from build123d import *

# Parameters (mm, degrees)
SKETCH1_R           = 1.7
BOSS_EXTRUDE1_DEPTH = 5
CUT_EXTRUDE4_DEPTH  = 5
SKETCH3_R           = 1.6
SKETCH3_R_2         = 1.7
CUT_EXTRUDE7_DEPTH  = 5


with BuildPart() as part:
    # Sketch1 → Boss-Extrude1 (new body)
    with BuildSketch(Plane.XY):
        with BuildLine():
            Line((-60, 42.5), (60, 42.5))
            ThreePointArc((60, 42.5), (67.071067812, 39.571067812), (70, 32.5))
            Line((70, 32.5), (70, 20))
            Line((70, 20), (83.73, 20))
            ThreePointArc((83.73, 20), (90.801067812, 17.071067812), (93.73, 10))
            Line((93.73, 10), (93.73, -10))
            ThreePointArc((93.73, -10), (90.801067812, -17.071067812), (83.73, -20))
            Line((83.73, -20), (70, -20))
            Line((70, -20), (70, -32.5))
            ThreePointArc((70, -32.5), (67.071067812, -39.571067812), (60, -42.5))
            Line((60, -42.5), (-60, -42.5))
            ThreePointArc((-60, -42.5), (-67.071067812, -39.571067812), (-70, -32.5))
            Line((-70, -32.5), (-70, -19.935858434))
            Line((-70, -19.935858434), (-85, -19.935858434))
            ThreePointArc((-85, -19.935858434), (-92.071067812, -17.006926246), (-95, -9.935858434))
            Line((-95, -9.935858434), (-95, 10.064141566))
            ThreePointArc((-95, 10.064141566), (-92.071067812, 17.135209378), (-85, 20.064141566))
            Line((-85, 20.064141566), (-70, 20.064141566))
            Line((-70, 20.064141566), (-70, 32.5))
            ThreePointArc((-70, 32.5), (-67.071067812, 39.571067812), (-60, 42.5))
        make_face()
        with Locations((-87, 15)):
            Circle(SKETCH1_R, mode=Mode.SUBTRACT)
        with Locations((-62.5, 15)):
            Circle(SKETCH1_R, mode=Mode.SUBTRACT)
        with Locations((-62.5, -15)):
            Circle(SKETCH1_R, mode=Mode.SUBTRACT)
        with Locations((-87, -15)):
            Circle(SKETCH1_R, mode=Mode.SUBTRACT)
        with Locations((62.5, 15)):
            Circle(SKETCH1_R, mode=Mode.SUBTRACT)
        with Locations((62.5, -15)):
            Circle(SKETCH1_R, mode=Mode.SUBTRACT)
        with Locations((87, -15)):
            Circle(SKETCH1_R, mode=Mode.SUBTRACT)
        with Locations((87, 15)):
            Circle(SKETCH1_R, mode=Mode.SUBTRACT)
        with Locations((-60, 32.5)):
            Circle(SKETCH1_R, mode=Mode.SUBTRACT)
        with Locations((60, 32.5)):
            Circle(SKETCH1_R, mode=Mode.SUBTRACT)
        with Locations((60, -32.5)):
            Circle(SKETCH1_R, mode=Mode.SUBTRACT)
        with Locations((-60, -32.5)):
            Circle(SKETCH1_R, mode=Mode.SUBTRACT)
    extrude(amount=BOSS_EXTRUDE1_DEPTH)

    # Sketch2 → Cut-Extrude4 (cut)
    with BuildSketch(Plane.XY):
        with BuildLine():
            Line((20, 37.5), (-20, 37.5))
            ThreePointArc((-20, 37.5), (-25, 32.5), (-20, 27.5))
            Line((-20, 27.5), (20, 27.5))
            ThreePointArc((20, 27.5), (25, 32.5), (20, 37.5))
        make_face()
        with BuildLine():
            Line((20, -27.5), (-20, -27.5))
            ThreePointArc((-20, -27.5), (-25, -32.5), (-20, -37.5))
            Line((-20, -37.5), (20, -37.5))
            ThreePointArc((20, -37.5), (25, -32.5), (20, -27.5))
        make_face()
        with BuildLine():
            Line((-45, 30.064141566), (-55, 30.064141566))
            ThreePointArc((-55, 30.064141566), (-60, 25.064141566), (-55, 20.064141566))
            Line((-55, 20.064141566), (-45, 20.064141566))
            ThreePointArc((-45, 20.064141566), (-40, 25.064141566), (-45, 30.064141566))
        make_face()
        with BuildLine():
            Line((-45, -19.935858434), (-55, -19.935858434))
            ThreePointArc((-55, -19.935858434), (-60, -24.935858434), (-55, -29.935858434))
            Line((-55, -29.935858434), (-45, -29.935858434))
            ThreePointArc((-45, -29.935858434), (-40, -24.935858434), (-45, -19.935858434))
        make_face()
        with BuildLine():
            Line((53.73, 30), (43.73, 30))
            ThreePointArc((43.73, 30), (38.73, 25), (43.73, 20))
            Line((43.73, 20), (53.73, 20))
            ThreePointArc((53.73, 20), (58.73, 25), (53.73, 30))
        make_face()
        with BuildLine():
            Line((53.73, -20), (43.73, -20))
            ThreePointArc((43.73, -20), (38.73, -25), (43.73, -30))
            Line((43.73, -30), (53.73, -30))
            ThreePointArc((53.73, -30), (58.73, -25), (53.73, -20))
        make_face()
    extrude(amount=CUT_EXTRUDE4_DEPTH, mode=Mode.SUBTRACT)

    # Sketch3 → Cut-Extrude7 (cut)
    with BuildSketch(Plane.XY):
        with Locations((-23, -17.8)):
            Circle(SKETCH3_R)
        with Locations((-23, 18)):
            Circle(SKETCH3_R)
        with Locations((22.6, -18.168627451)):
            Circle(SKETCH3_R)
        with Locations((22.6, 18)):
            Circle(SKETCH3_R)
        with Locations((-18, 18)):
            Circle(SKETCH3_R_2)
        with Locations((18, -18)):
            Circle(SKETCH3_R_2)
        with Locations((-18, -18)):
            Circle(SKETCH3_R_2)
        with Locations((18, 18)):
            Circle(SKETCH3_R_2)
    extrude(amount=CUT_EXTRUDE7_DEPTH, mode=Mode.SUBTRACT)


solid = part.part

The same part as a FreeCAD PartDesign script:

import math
import FreeCAD as App
import Part
import Sketcher
Q = App.Units.Quantity

doc = App.newDocument("Part")
params = doc.addObject("Spreadsheet::Sheet", "Params")
for row, (alias, value) in enumerate([
    ("sketch1_radius", "10 mm"),
    ("sketch1_diameter", "3.4 mm"),
    ("sketch1_width", "120 mm"),
    ("sketch1_width2", "15 mm"),
    ("sketch1_height", "20 mm"),
    ("pad1_length", "5 mm"),
    ("sketch2_radius", "5 mm"),
    ("sketch2_width", "40 mm"),
    ("sketch2_width2", "10 mm"),
    ("pocket1_length", "5 mm"),
    ("sketch3_diameter", "3.2 mm"),
    ("sketch3_diameter2", "3.4 mm"),
    ("pocket2_length", "5 mm"),
], start=1):
    params.set(f"A{row}", alias)
    params.set(f"B{row}", "=" + value)
    params.setAlias(f"B{row}", alias)

body = doc.addObject("PartDesign::Body", "Body")

# Sketch on XY plane
sketch1 = body.newObject("Sketcher::SketchObject", "Sketch")
sketch1.AttachmentSupport = (doc.getObject("XY_Plane"), [""])
sketch1.MapMode = "FlatFace"
sketch1.addGeometry(Part.LineSegment(App.Vector(60, 42.5, 0), App.Vector(-60, 42.5, 0)), False)
sketch1.addGeometry(Part.ArcOfCircle(Part.Circle(App.Vector(-60, 32.5, 0), App.Vector(0, 0, 1), 10), math.radians(90), math.radians(180)), False)
sketch1.addGeometry(Part.LineSegment(App.Vector(-70, 32.5, 0), App.Vector(-70, 20.064142, 0)), False)
sketch1.addGeometry(Part.LineSegment(App.Vector(-70, 20.064142, 0), App.Vector(-85, 20.064142, 0)), False)
sketch1.addGeometry(Part.ArcOfCircle(Part.Circle(App.Vector(-85, 10.064142, 0), App.Vector(0, 0, 1), 10), math.radians(90), math.radians(180)), False)
sketch1.addGeometry(Part.LineSegment(App.Vector(-95, 10.064142, 0), App.Vector(-95, -9.935858, 0)), False)
sketch1.addGeometry(Part.ArcOfCircle(Part.Circle(App.Vector(-85, -9.935858, 0), App.Vector(0, 0, 1), 10), math.radians(180), math.radians(270)), False)
sketch1.addGeometry(Part.LineSegment(App.Vector(-85, -19.935858, 0), App.Vector(-70, -19.935858, 0)), False)
sketch1.addGeometry(Part.LineSegment(App.Vector(-70, -19.935858, 0), App.Vector(-70, -32.5, 0)), False)
sketch1.addGeometry(Part.ArcOfCircle(Part.Circle(App.Vector(-60, -32.5, 0), App.Vector(0, 0, 1), 10), math.radians(180), math.radians(270)), False)
sketch1.addGeometry(Part.LineSegment(App.Vector(-60, -42.5, 0), App.Vector(60, -42.5, 0)), False)
sketch1.addGeometry(Part.ArcOfCircle(Part.Circle(App.Vector(60, -32.5, 0), App.Vector(0, 0, 1), 10), math.radians(-90), math.radians(0)), False)
sketch1.addGeometry(Part.LineSegment(App.Vector(70, -32.5, 0), App.Vector(70, -20, 0)), False)
sketch1.addGeometry(Part.LineSegment(App.Vector(70, -20, 0), App.Vector(83.73, -20, 0)), False)
sketch1.addGeometry(Part.ArcOfCircle(Part.Circle(App.Vector(83.73, -10, 0), App.Vector(0, 0, 1), 10), math.radians(-90), math.radians(0)), False)
sketch1.addGeometry(Part.LineSegment(App.Vector(93.73, -10, 0), App.Vector(93.73, 10, 0)), False)
sketch1.addGeometry(Part.ArcOfCircle(Part.Circle(App.Vector(83.73, 10, 0), App.Vector(0, 0, 1), 10), math.radians(0), math.radians(90)), False)
sketch1.addGeometry(Part.LineSegment(App.Vector(83.73, 20, 0), App.Vector(70, 20, 0)), False)
sketch1.addGeometry(Part.LineSegment(App.Vector(70, 20, 0), App.Vector(70, 32.5, 0)), False)
sketch1.addGeometry(Part.ArcOfCircle(Part.Circle(App.Vector(60, 32.5, 0), App.Vector(0, 0, 1), 10), math.radians(0), math.radians(90)), False)
sketch1.addGeometry(Part.Circle(App.Vector(60, -32.5, 0), App.Vector(0, 0, 1), 1.7), False)
sketch1.addGeometry(Part.Circle(App.Vector(87, -15, 0), App.Vector(0, 0, 1), 1.7), False)
sketch1.addGeometry(Part.Circle(App.Vector(62.5, -15, 0), App.Vector(0, 0, 1), 1.7), False)
sketch1.addGeometry(Part.Circle(App.Vector(-60, -32.5, 0), App.Vector(0, 0, 1), 1.7), False)
sketch1.addGeometry(Part.Circle(App.Vector(-62.5, -15, 0), App.Vector(0, 0, 1), 1.7), False)
sketch1.addGeometry(Part.Circle(App.Vector(-87, -15, 0), App.Vector(0, 0, 1), 1.7), False)
sketch1.addGeometry(Part.Circle(App.Vector(87, 15, 0), App.Vector(0, 0, 1), 1.7), False)
sketch1.addGeometry(Part.Circle(App.Vector(62.5, 15, 0), App.Vector(0, 0, 1), 1.7), False)
sketch1.addGeometry(Part.Circle(App.Vector(60, 32.5, 0), App.Vector(0, 0, 1), 1.7), False)
sketch1.addGeometry(Part.Circle(App.Vector(-62.5, 15, 0), App.Vector(0, 0, 1), 1.7), False)
sketch1.addGeometry(Part.Circle(App.Vector(-87, 15, 0), App.Vector(0, 0, 1), 1.7), False)
sketch1.addGeometry(Part.Circle(App.Vector(-60, 32.5, 0), App.Vector(0, 0, 1), 1.7), False)
sketch1.addConstraint(Sketcher.Constraint("Tangent", 0, 2, 1, 1))
sketch1.addConstraint(Sketcher.Constraint("Tangent", 1, 2, 2, 1))
sketch1.addConstraint(Sketcher.Constraint("Coincident", 2, 2, 3, 1))
sketch1.addConstraint(Sketcher.Constraint("Tangent", 3, 2, 4, 1))
sketch1.addConstraint(Sketcher.Constraint("Tangent", 4, 2, 5, 1))
sketch1.addConstraint(Sketcher.Constraint("Tangent", 5, 2, 6, 1))
sketch1.addConstraint(Sketcher.Constraint("Tangent", 6, 2, 7, 1))
sketch1.addConstraint(Sketcher.Constraint("Coincident", 7, 2, 8, 1))
sketch1.addConstraint(Sketcher.Constraint("Tangent", 8, 2, 9, 1))
sketch1.addConstraint(Sketcher.Constraint("Tangent", 9, 2, 10, 1))
sketch1.addConstraint(Sketcher.Constraint("Tangent", 10, 2, 11, 1))
sketch1.addConstraint(Sketcher.Constraint("Tangent", 11, 2, 12, 1))
sketch1.addConstraint(Sketcher.Constraint("Coincident", 12, 2, 13, 1))
sketch1.addConstraint(Sketcher.Constraint("Tangent", 13, 2, 14, 1))
sketch1.addConstraint(Sketcher.Constraint("Tangent", 14, 2, 15, 1))
sketch1.addConstraint(Sketcher.Constraint("Tangent", 15, 2, 16, 1))
sketch1.addConstraint(Sketcher.Constraint("Tangent", 16, 2, 17, 1))
sketch1.addConstraint(Sketcher.Constraint("Coincident", 17, 2, 18, 1))
sketch1.addConstraint(Sketcher.Constraint("Tangent", 18, 2, 19, 1))
sketch1.addConstraint(Sketcher.Constraint("Tangent", 19, 2, 0, 1))
sketch1.addConstraint(Sketcher.Constraint("Horizontal", 0))
sketch1.addConstraint(Sketcher.Constraint("Vertical", 2))
sketch1.addConstraint(Sketcher.Constraint("Horizontal", 3))
sketch1.addConstraint(Sketcher.Constraint("Vertical", 5))
sketch1.addConstraint(Sketcher.Constraint("Horizontal", 7))
sketch1.addConstraint(Sketcher.Constraint("Vertical", 8))
sketch1.addConstraint(Sketcher.Constraint("Horizontal", 10))
sketch1.addConstraint(Sketcher.Constraint("Vertical", 12))
sketch1.addConstraint(Sketcher.Constraint("Horizontal", 13))
sketch1.addConstraint(Sketcher.Constraint("Vertical", 15))
sketch1.addConstraint(Sketcher.Constraint("Horizontal", 17))
sketch1.addConstraint(Sketcher.Constraint("Vertical", 18))
sketch1.addConstraint(Sketcher.Constraint("Coincident", 20, 3, 11, 3))
sketch1.addConstraint(Sketcher.Constraint("Coincident", 23, 3, 9, 3))
sketch1.addConstraint(Sketcher.Constraint("Coincident", 28, 3, 19, 3))
sketch1.addConstraint(Sketcher.Constraint("Coincident", 31, 3, 1, 3))
sketch1.addConstraint(Sketcher.Constraint("Equal", 1, 4))
sketch1.addConstraint(Sketcher.Constraint("Equal", 4, 6))
sketch1.addConstraint(Sketcher.Constraint("Equal", 6, 9))
sketch1.addConstraint(Sketcher.Constraint("Equal", 9, 11))
sketch1.addConstraint(Sketcher.Constraint("Equal", 11, 14))
sketch1.addConstraint(Sketcher.Constraint("Equal", 14, 16))
sketch1.addConstraint(Sketcher.Constraint("Equal", 16, 19))
sketch1.addConstraint(Sketcher.Constraint("Equal", 20, 21))
sketch1.addConstraint(Sketcher.Constraint("Equal", 21, 22))
sketch1.addConstraint(Sketcher.Constraint("Equal", 22, 23))
sketch1.addConstraint(Sketcher.Constraint("Equal", 23, 24))
sketch1.addConstraint(Sketcher.Constraint("Equal", 24, 25))
sketch1.addConstraint(Sketcher.Constraint("Equal", 25, 26))
sketch1.addConstraint(Sketcher.Constraint("Equal", 26, 27))
sketch1.addConstraint(Sketcher.Constraint("Equal", 27, 28))
sketch1.addConstraint(Sketcher.Constraint("Equal", 28, 29))
sketch1.addConstraint(Sketcher.Constraint("Equal", 29, 30))
sketch1.addConstraint(Sketcher.Constraint("Equal", 30, 31))
sketch1.addConstraint(Sketcher.Constraint("Symmetric", 1, 3, 11, 3, -1, 1))
sketch1.addConstraint(Sketcher.Constraint("Symmetric", 25, 3, 26, 3, -1, 1))
sketch1.addConstraint(Sketcher.Constraint("Symmetric", 24, 3, 27, 3, -1, 1))
sketch1.addConstraint(Sketcher.Constraint("Symmetric", 22, 3, 29, 3, -1, 1))
sketch1.addConstraint(Sketcher.Constraint("Symmetric", 21, 3, 30, 3, -1, 1))
sketch1.addConstraint(Sketcher.Constraint("Symmetric", 22, 3, 24, 3, -2))
sketch1.addConstraint(Sketcher.Constraint("Symmetric", 21, 3, 25, 3, -2))
sketch1.addConstraint(Sketcher.Constraint("Symmetric", 12, 2, 17, 2, -1))
sketch1.addConstraint(Sketcher.Constraint("Horizontal", 21, 3, 22, 3))
sketch1.addConstraint(Sketcher.Constraint("Vertical", 1, 3, 9, 3))
sketch1.addConstraint(Sketcher.Constraint("Equal", 5, 15))
sketch1.addConstraint(Sketcher.Constraint("Radius", 1, Q("10 mm")))
sketch1.addConstraint(Sketcher.Constraint("Diameter", 20, Q("3.4 mm")))
sketch1.addConstraint(Sketcher.Constraint("DistanceX", 0, 2, 0, 1, Q("120 mm")))
sketch1.addConstraint(Sketcher.Constraint("DistanceX", 3, 2, 3, 1, Q("15 mm")))
sketch1.addConstraint(Sketcher.Constraint("DistanceY", 5, 2, 5, 1, Q("20 mm")))
sketch1.addConstraint(Sketcher.Constraint("DistanceY", 12, 1, 12, 2, Q("12.5 mm")))
sketch1.addConstraint(Sketcher.Constraint("DistanceX", -1, 1, 21, 3, Q("87 mm")))
sketch1.addConstraint(Sketcher.Constraint("DistanceY", 21, 3, -1, 1, Q("15 mm")))
sketch1.addConstraint(Sketcher.Constraint("DistanceX", 13, 1, 13, 2, Q("13.73 mm")))
sketch1.addConstraint(Sketcher.Constraint("DistanceX", -1, 1, 22, 3, Q("62.5 mm")))
sketch1.addConstraint(Sketcher.Constraint("DistanceY", 2, 2, 2, 1, Q("12.435858 mm")))
sketch1.setExpression("Constraints[65]", "Params.sketch1_radius")
sketch1.setExpression("Constraints[66]", "Params.sketch1_diameter")
sketch1.setExpression("Constraints[67]", "Params.sketch1_width")
sketch1.setExpression("Constraints[68]", "Params.sketch1_width2")
sketch1.setExpression("Constraints[69]", "Params.sketch1_height")
pad1 = body.newObject("PartDesign::Pad", "Pad")
pad1.Profile = sketch1
pad1.setExpression("Length", "Params.pad1_length")

# Sketch on XY plane
sketch2 = body.newObject("Sketcher::SketchObject", "Sketch001")
sketch2.AttachmentSupport = (doc.getObject("XY_Plane"), [""])
sketch2.MapMode = "FlatFace"
sketch2.addGeometry(Part.LineSegment(App.Vector(20, 37.5, 0), App.Vector(-20, 37.5, 0)), False)
sketch2.addGeometry(Part.ArcOfCircle(Part.Circle(App.Vector(-20, 32.5, 0), App.Vector(0, 0, 1), 5), math.radians(90), math.radians(270)), False)
sketch2.addGeometry(Part.LineSegment(App.Vector(-20, 27.5, 0), App.Vector(20, 27.5, 0)), False)
sketch2.addGeometry(Part.ArcOfCircle(Part.Circle(App.Vector(20, 32.5, 0), App.Vector(0, 0, 1), 5), math.radians(-90), math.radians(90)), False)
sketch2.addGeometry(Part.LineSegment(App.Vector(20, -27.5, 0), App.Vector(-20, -27.5, 0)), False)
sketch2.addGeometry(Part.ArcOfCircle(Part.Circle(App.Vector(-20, -32.5, 0), App.Vector(0, 0, 1), 5), math.radians(90), math.radians(270)), False)
sketch2.addGeometry(Part.LineSegment(App.Vector(-20, -37.5, 0), App.Vector(20, -37.5, 0)), False)
sketch2.addGeometry(Part.ArcOfCircle(Part.Circle(App.Vector(20, -32.5, 0), App.Vector(0, 0, 1), 5), math.radians(-90), math.radians(90)), False)
sketch2.addGeometry(Part.LineSegment(App.Vector(-45, 30.064142, 0), App.Vector(-55, 30.064142, 0)), False)
sketch2.addGeometry(Part.ArcOfCircle(Part.Circle(App.Vector(-55, 25.064142, 0), App.Vector(0, 0, 1), 5), math.radians(90), math.radians(270)), False)
sketch2.addGeometry(Part.LineSegment(App.Vector(-55, 20.064142, 0), App.Vector(-45, 20.064142, 0)), False)
sketch2.addGeometry(Part.ArcOfCircle(Part.Circle(App.Vector(-45, 25.064142, 0), App.Vector(0, 0, 1), 5), math.radians(-90), math.radians(90)), False)
sketch2.addGeometry(Part.LineSegment(App.Vector(-45, -19.935858, 0), App.Vector(-55, -19.935858, 0)), False)
sketch2.addGeometry(Part.ArcOfCircle(Part.Circle(App.Vector(-55, -24.935858, 0), App.Vector(0, 0, 1), 5), math.radians(90), math.radians(270)), False)
sketch2.addGeometry(Part.LineSegment(App.Vector(-55, -29.935858, 0), App.Vector(-45, -29.935858, 0)), False)
sketch2.addGeometry(Part.ArcOfCircle(Part.Circle(App.Vector(-45, -24.935858, 0), App.Vector(0, 0, 1), 5), math.radians(-90), math.radians(90)), False)
sketch2.addGeometry(Part.LineSegment(App.Vector(53.73, 30, 0), App.Vector(43.73, 30, 0)), False)
sketch2.addGeometry(Part.ArcOfCircle(Part.Circle(App.Vector(43.73, 25, 0), App.Vector(0, 0, 1), 5), math.radians(90), math.radians(270)), False)
sketch2.addGeometry(Part.LineSegment(App.Vector(43.73, 20, 0), App.Vector(53.73, 20, 0)), False)
sketch2.addGeometry(Part.ArcOfCircle(Part.Circle(App.Vector(53.73, 25, 0), App.Vector(0, 0, 1), 5), math.radians(-90), math.radians(90)), False)
sketch2.addGeometry(Part.LineSegment(App.Vector(53.73, -20, 0), App.Vector(43.73, -20, 0)), False)
sketch2.addGeometry(Part.ArcOfCircle(Part.Circle(App.Vector(43.73, -25, 0), App.Vector(0, 0, 1), 5), math.radians(90), math.radians(270)), False)
sketch2.addGeometry(Part.LineSegment(App.Vector(43.73, -30, 0), App.Vector(53.73, -30, 0)), False)
sketch2.addGeometry(Part.ArcOfCircle(Part.Circle(App.Vector(53.73, -25, 0), App.Vector(0, 0, 1), 5), math.radians(-90), math.radians(90)), False)
sketch2.addConstraint(Sketcher.Constraint("Tangent", 0, 2, 1, 1))
sketch2.addConstraint(Sketcher.Constraint("Tangent", 1, 2, 2, 1))
sketch2.addConstraint(Sketcher.Constraint("Tangent", 2, 2, 3, 1))
sketch2.addConstraint(Sketcher.Constraint("Tangent", 3, 2, 0, 1))
sketch2.addConstraint(Sketcher.Constraint("Tangent", 4, 2, 5, 1))
sketch2.addConstraint(Sketcher.Constraint("Tangent", 5, 2, 6, 1))
sketch2.addConstraint(Sketcher.Constraint("Tangent", 6, 2, 7, 1))
sketch2.addConstraint(Sketcher.Constraint("Tangent", 7, 2, 4, 1))
sketch2.addConstraint(Sketcher.Constraint("Tangent", 8, 2, 9, 1))
sketch2.addConstraint(Sketcher.Constraint("Tangent", 9, 2, 10, 1))
sketch2.addConstraint(Sketcher.Constraint("Tangent", 10, 2, 11, 1))
sketch2.addConstraint(Sketcher.Constraint("Tangent", 11, 2, 8, 1))
sketch2.addConstraint(Sketcher.Constraint("Tangent", 12, 2, 13, 1))
sketch2.addConstraint(Sketcher.Constraint("Tangent", 13, 2, 14, 1))
sketch2.addConstraint(Sketcher.Constraint("Tangent", 14, 2, 15, 1))
sketch2.addConstraint(Sketcher.Constraint("Tangent", 15, 2, 12, 1))
sketch2.addConstraint(Sketcher.Constraint("Tangent", 16, 2, 17, 1))
sketch2.addConstraint(Sketcher.Constraint("Tangent", 17, 2, 18, 1))
sketch2.addConstraint(Sketcher.Constraint("Tangent", 18, 2, 19, 1))
sketch2.addConstraint(Sketcher.Constraint("Tangent", 19, 2, 16, 1))
sketch2.addConstraint(Sketcher.Constraint("Tangent", 20, 2, 21, 1))
sketch2.addConstraint(Sketcher.Constraint("Tangent", 21, 2, 22, 1))
sketch2.addConstraint(Sketcher.Constraint("Tangent", 22, 2, 23, 1))
sketch2.addConstraint(Sketcher.Constraint("Tangent", 23, 2, 20, 1))
sketch2.addConstraint(Sketcher.Constraint("Horizontal", 0))
sketch2.addConstraint(Sketcher.Constraint("Horizontal", 2))
sketch2.addConstraint(Sketcher.Constraint("Horizontal", 4))
sketch2.addConstraint(Sketcher.Constraint("Horizontal", 6))
sketch2.addConstraint(Sketcher.Constraint("Horizontal", 8))
sketch2.addConstraint(Sketcher.Constraint("Horizontal", 10))
sketch2.addConstraint(Sketcher.Constraint("Horizontal", 12))
sketch2.addConstraint(Sketcher.Constraint("Horizontal", 14))
sketch2.addConstraint(Sketcher.Constraint("Horizontal", 16))
sketch2.addConstraint(Sketcher.Constraint("Horizontal", 18))
sketch2.addConstraint(Sketcher.Constraint("Horizontal", 20))
sketch2.addConstraint(Sketcher.Constraint("Horizontal", 22))
sketch2.addConstraint(Sketcher.Constraint("Equal", 3, 5))
sketch2.addConstraint(Sketcher.Constraint("Equal", 7, 9))
sketch2.addConstraint(Sketcher.Constraint("Equal", 11, 13))
sketch2.addConstraint(Sketcher.Constraint("Equal", 15, 17))
sketch2.addConstraint(Sketcher.Constraint("Equal", 19, 21))
sketch2.addConstraint(Sketcher.Constraint("Symmetric", 3, 3, 5, 3, -1, 1))
sketch2.addConstraint(Sketcher.Constraint("Symmetric", 17, 3, 21, 3, -1))
sketch2.addConstraint(Sketcher.Constraint("Vertical", 1, 3, 5, 3))
sketch2.addConstraint(Sketcher.Constraint("Vertical", 3, 3, 7, 3))
sketch2.addConstraint(Sketcher.Constraint("Vertical", 9, 3, 13, 3))
sketch2.addConstraint(Sketcher.Constraint("Vertical", 11, 3, 15, 3))
sketch2.addConstraint(Sketcher.Constraint("Vertical", 19, 3, 23, 3))
sketch2.addConstraint(Sketcher.Constraint("Equal", 14, 16))
sketch2.addConstraint(Sketcher.Constraint("Radius", 1, Q("5 mm")))
sketch2.addConstraint(Sketcher.Constraint("DistanceX", 0, 2, 0, 1, Q("40 mm")))
sketch2.addConstraint(Sketcher.Constraint("DistanceX", 8, 2, 8, 1, Q("10 mm")))
sketch2.addConstraint(Sketcher.Constraint("DistanceX", 9, 3, -1, 1, Q("55 mm")))
sketch2.addConstraint(Sketcher.Constraint("DistanceY", -1, 1, 17, 3, Q("25 mm")))
sketch2.addConstraint(Sketcher.Constraint("DistanceY", 5, 3, 1, 3, Q("65 mm")))
sketch2.addConstraint(Sketcher.Constraint("DistanceY", 13, 3, 9, 3, Q("50 mm")))
sketch2.addConstraint(Sketcher.Constraint("DistanceX", -1, 1, 17, 3, Q("43.73 mm")))
sketch2.addConstraint(Sketcher.Constraint("DistanceY", -1, 1, 9, 3, Q("25.064142 mm")))
sketch2.setExpression("Constraints[49]", "Params.sketch2_radius")
sketch2.setExpression("Constraints[50]", "Params.sketch2_width")
sketch2.setExpression("Constraints[51]", "Params.sketch2_width2")
pocket1 = body.newObject("PartDesign::Pocket", "Pocket")
pocket1.Profile = sketch2
pocket1.setExpression("Length", "Params.pocket1_length")
pocket1.Reversed = True

# Sketch on XY plane
sketch3 = body.newObject("Sketcher::SketchObject", "Sketch002")
sketch3.AttachmentSupport = (doc.getObject("XY_Plane"), [""])
sketch3.MapMode = "FlatFace"
sketch3.addGeometry(Part.Circle(App.Vector(-23, -17.8, 0), App.Vector(0, 0, 1), 1.6), False)
sketch3.addGeometry(Part.Circle(App.Vector(-23, 18, 0), App.Vector(0, 0, 1), 1.6), False)
sketch3.addGeometry(Part.Circle(App.Vector(22.6, -18.168627, 0), App.Vector(0, 0, 1), 1.6), False)
sketch3.addGeometry(Part.Circle(App.Vector(22.6, 18, 0), App.Vector(0, 0, 1), 1.6), False)
sketch3.addGeometry(Part.Circle(App.Vector(-18, 18, 0), App.Vector(0, 0, 1), 1.7), False)
sketch3.addGeometry(Part.Circle(App.Vector(18, -18, 0), App.Vector(0, 0, 1), 1.7), False)
sketch3.addGeometry(Part.Circle(App.Vector(-18, -18, 0), App.Vector(0, 0, 1), 1.7), False)
sketch3.addGeometry(Part.Circle(App.Vector(18, 18, 0), App.Vector(0, 0, 1), 1.7), False)
sketch3.addConstraint(Sketcher.Constraint("Equal", 0, 1))
sketch3.addConstraint(Sketcher.Constraint("Equal", 1, 2))
sketch3.addConstraint(Sketcher.Constraint("Equal", 2, 3))
sketch3.addConstraint(Sketcher.Constraint("Equal", 4, 5))
sketch3.addConstraint(Sketcher.Constraint("Equal", 5, 6))
sketch3.addConstraint(Sketcher.Constraint("Equal", 6, 7))
sketch3.addConstraint(Sketcher.Constraint("Symmetric", 4, 3, 5, 3, -1, 1))
sketch3.addConstraint(Sketcher.Constraint("Symmetric", 6, 3, 7, 3, -1, 1))
sketch3.addConstraint(Sketcher.Constraint("Symmetric", 5, 3, 6, 3, -2))
sketch3.addConstraint(Sketcher.Constraint("Horizontal", 1, 3, 3, 3))
sketch3.addConstraint(Sketcher.Constraint("Horizontal", 3, 3, 4, 3))
sketch3.addConstraint(Sketcher.Constraint("Vertical", 0, 3, 1, 3))
sketch3.addConstraint(Sketcher.Constraint("Vertical", 2, 3, 3, 3))
sketch3.addConstraint(Sketcher.Constraint("Diameter", 0, Q("3.2 mm")))
sketch3.addConstraint(Sketcher.Constraint("Diameter", 4, Q("3.4 mm")))
sketch3.addConstraint(Sketcher.Constraint("DistanceX", 0, 3, -1, 1, Q("23 mm")))
sketch3.addConstraint(Sketcher.Constraint("DistanceY", -1, 1, 1, 3, Q("18 mm")))
sketch3.addConstraint(Sketcher.Constraint("DistanceX", 4, 3, -1, 1, Q("18 mm")))
sketch3.addConstraint(Sketcher.Constraint("DistanceY", 0, 3, -1, 1, Q("17.8 mm")))
sketch3.addConstraint(Sketcher.Constraint("DistanceX", -1, 1, 2, 3, Q("22.6 mm")))
sketch3.addConstraint(Sketcher.Constraint("DistanceY", 2, 3, -1, 1, Q("18.168627 mm")))
sketch3.setExpression("Constraints[13]", "Params.sketch3_diameter")
sketch3.setExpression("Constraints[14]", "Params.sketch3_diameter2")
pocket2 = body.newObject("PartDesign::Pocket", "Pocket001")
pocket2.Profile = sketch3
pocket2.setExpression("Length", "Params.pocket2_length")
pocket2.Reversed = True

doc.recompute()
